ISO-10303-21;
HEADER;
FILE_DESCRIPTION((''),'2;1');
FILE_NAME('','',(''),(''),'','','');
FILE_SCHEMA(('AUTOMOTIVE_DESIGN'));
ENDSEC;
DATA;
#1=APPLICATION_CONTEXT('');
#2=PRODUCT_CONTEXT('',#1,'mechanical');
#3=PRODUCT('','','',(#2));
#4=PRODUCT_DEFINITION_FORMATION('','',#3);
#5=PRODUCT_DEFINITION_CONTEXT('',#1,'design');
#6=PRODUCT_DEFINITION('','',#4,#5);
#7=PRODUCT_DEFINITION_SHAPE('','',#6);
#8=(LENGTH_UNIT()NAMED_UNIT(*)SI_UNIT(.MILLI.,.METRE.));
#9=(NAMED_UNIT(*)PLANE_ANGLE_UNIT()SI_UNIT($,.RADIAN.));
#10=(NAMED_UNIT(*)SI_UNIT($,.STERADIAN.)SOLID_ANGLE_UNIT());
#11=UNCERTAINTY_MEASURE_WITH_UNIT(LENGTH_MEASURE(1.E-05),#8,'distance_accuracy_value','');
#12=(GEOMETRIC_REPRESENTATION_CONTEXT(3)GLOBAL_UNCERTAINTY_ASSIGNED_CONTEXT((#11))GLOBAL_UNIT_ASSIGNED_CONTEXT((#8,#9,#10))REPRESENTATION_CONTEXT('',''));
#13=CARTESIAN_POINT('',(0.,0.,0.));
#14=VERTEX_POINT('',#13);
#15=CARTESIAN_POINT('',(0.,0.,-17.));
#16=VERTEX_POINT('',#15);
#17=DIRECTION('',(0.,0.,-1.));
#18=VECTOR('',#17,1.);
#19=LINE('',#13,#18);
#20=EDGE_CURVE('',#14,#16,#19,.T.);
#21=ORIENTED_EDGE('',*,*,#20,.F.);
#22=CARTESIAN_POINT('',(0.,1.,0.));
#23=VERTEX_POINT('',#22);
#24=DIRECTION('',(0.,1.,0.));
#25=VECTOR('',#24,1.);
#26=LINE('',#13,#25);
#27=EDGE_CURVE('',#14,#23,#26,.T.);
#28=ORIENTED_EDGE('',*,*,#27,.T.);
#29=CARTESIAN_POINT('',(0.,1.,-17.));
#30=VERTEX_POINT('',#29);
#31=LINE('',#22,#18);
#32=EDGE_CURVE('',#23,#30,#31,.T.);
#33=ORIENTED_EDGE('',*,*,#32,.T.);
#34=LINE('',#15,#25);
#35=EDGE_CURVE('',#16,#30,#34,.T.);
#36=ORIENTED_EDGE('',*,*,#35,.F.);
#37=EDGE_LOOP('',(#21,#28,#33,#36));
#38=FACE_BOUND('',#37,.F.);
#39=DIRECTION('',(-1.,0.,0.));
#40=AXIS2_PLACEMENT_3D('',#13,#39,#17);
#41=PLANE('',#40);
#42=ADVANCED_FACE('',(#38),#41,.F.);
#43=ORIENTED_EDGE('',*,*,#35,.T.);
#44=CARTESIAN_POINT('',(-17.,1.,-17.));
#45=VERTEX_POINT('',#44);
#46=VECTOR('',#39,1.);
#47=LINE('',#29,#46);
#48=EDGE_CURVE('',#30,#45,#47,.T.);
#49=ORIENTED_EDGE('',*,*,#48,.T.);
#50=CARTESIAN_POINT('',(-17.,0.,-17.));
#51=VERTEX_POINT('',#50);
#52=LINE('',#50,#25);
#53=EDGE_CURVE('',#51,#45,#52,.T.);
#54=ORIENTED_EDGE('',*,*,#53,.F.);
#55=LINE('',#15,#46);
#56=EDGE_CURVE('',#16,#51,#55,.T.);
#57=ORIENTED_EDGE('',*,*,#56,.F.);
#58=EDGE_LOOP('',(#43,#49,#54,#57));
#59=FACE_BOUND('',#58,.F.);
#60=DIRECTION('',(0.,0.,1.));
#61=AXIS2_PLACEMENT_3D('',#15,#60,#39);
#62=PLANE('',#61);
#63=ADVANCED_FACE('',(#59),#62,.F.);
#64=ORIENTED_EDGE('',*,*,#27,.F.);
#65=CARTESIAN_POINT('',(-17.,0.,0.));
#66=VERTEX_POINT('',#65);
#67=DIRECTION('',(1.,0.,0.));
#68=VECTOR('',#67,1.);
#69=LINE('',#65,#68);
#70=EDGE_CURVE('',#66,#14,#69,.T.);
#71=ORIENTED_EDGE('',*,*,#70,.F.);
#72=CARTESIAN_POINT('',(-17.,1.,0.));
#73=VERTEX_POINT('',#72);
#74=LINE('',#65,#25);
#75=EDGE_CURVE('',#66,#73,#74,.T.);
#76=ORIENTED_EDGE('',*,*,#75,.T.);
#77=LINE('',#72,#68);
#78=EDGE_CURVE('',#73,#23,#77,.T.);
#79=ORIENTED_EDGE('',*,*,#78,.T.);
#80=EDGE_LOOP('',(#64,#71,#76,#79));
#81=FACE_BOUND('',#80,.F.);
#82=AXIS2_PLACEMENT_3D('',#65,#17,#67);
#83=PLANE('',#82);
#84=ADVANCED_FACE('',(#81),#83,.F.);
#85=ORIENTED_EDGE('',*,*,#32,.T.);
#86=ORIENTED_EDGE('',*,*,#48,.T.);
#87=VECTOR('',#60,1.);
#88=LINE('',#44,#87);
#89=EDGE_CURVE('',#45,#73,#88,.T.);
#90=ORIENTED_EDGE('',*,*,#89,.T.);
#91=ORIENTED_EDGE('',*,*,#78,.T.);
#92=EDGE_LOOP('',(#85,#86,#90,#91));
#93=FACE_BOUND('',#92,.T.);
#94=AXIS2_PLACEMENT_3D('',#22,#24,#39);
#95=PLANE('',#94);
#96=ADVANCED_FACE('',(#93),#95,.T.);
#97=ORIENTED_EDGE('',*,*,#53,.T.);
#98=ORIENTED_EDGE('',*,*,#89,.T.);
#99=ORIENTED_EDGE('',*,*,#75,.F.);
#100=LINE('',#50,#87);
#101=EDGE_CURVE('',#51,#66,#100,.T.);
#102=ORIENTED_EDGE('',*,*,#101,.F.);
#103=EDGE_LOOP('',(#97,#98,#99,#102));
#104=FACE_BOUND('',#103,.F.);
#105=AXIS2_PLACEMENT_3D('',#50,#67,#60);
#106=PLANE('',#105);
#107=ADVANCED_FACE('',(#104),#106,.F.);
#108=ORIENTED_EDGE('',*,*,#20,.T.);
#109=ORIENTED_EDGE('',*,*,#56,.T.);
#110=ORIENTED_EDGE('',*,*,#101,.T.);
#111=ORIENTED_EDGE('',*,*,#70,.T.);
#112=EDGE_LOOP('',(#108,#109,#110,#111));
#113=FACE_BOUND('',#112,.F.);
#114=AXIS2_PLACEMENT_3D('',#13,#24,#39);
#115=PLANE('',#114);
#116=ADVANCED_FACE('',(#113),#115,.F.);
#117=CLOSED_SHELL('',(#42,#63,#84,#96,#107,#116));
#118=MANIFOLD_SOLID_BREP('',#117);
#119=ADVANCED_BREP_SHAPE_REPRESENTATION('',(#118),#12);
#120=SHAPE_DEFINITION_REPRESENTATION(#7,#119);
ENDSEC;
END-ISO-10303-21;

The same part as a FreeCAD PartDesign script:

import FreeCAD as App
import Part
import Sketcher

V = App.Vector
Q = App.Units.Quantity


def add_polygon(sketch, points):
    """Adds a closed chain of lines whose ends are joined by coincident constraints."""
    first, n = sketch.GeometryCount, len(points)
    for a, b in zip(points, points[1:] + points[:1]):
        sketch.addGeometry(Part.LineSegment(App.Vector(*a, 0), App.Vector(*b, 0)), False)
    for i in range(n):
        sketch.addConstraint(Sketcher.Constraint("Coincident", first + i, 2, first + (i + 1) % n, 1))

doc = App.newDocument("Part")
body = doc.addObject("PartDesign::Body", "Body")

sketch1 = body.newObject("Sketcher::SketchObject", "Sketch")
sketch1.AttachmentSupport = (doc.getObject("XZ_Plane"), [""])
sketch1.MapMode = "FlatFace"
add_polygon(sketch1, [(-17, 0), (0, 0), (0, -17), (-17, -17)])
sketch1.addConstraint([
    Sketcher.Constraint("Horizontal", 0),
    Sketcher.Constraint("Vertical", 1),
    Sketcher.Constraint("Horizontal", 2),
    Sketcher.Constraint("Vertical", 3),
    Sketcher.Constraint("Coincident", 0, 2, -1, 1),
    Sketcher.Constraint("Equal", 2, 1),
    Sketcher.Constraint("DistanceX", 0, 1, 0, 2, Q("17 mm")),
])
pad1 = body.newObject("PartDesign::Pad", "Pad")
pad1.Profile = sketch1
pad1.Length = 1
pad1.Reversed = True

doc.recompute()
